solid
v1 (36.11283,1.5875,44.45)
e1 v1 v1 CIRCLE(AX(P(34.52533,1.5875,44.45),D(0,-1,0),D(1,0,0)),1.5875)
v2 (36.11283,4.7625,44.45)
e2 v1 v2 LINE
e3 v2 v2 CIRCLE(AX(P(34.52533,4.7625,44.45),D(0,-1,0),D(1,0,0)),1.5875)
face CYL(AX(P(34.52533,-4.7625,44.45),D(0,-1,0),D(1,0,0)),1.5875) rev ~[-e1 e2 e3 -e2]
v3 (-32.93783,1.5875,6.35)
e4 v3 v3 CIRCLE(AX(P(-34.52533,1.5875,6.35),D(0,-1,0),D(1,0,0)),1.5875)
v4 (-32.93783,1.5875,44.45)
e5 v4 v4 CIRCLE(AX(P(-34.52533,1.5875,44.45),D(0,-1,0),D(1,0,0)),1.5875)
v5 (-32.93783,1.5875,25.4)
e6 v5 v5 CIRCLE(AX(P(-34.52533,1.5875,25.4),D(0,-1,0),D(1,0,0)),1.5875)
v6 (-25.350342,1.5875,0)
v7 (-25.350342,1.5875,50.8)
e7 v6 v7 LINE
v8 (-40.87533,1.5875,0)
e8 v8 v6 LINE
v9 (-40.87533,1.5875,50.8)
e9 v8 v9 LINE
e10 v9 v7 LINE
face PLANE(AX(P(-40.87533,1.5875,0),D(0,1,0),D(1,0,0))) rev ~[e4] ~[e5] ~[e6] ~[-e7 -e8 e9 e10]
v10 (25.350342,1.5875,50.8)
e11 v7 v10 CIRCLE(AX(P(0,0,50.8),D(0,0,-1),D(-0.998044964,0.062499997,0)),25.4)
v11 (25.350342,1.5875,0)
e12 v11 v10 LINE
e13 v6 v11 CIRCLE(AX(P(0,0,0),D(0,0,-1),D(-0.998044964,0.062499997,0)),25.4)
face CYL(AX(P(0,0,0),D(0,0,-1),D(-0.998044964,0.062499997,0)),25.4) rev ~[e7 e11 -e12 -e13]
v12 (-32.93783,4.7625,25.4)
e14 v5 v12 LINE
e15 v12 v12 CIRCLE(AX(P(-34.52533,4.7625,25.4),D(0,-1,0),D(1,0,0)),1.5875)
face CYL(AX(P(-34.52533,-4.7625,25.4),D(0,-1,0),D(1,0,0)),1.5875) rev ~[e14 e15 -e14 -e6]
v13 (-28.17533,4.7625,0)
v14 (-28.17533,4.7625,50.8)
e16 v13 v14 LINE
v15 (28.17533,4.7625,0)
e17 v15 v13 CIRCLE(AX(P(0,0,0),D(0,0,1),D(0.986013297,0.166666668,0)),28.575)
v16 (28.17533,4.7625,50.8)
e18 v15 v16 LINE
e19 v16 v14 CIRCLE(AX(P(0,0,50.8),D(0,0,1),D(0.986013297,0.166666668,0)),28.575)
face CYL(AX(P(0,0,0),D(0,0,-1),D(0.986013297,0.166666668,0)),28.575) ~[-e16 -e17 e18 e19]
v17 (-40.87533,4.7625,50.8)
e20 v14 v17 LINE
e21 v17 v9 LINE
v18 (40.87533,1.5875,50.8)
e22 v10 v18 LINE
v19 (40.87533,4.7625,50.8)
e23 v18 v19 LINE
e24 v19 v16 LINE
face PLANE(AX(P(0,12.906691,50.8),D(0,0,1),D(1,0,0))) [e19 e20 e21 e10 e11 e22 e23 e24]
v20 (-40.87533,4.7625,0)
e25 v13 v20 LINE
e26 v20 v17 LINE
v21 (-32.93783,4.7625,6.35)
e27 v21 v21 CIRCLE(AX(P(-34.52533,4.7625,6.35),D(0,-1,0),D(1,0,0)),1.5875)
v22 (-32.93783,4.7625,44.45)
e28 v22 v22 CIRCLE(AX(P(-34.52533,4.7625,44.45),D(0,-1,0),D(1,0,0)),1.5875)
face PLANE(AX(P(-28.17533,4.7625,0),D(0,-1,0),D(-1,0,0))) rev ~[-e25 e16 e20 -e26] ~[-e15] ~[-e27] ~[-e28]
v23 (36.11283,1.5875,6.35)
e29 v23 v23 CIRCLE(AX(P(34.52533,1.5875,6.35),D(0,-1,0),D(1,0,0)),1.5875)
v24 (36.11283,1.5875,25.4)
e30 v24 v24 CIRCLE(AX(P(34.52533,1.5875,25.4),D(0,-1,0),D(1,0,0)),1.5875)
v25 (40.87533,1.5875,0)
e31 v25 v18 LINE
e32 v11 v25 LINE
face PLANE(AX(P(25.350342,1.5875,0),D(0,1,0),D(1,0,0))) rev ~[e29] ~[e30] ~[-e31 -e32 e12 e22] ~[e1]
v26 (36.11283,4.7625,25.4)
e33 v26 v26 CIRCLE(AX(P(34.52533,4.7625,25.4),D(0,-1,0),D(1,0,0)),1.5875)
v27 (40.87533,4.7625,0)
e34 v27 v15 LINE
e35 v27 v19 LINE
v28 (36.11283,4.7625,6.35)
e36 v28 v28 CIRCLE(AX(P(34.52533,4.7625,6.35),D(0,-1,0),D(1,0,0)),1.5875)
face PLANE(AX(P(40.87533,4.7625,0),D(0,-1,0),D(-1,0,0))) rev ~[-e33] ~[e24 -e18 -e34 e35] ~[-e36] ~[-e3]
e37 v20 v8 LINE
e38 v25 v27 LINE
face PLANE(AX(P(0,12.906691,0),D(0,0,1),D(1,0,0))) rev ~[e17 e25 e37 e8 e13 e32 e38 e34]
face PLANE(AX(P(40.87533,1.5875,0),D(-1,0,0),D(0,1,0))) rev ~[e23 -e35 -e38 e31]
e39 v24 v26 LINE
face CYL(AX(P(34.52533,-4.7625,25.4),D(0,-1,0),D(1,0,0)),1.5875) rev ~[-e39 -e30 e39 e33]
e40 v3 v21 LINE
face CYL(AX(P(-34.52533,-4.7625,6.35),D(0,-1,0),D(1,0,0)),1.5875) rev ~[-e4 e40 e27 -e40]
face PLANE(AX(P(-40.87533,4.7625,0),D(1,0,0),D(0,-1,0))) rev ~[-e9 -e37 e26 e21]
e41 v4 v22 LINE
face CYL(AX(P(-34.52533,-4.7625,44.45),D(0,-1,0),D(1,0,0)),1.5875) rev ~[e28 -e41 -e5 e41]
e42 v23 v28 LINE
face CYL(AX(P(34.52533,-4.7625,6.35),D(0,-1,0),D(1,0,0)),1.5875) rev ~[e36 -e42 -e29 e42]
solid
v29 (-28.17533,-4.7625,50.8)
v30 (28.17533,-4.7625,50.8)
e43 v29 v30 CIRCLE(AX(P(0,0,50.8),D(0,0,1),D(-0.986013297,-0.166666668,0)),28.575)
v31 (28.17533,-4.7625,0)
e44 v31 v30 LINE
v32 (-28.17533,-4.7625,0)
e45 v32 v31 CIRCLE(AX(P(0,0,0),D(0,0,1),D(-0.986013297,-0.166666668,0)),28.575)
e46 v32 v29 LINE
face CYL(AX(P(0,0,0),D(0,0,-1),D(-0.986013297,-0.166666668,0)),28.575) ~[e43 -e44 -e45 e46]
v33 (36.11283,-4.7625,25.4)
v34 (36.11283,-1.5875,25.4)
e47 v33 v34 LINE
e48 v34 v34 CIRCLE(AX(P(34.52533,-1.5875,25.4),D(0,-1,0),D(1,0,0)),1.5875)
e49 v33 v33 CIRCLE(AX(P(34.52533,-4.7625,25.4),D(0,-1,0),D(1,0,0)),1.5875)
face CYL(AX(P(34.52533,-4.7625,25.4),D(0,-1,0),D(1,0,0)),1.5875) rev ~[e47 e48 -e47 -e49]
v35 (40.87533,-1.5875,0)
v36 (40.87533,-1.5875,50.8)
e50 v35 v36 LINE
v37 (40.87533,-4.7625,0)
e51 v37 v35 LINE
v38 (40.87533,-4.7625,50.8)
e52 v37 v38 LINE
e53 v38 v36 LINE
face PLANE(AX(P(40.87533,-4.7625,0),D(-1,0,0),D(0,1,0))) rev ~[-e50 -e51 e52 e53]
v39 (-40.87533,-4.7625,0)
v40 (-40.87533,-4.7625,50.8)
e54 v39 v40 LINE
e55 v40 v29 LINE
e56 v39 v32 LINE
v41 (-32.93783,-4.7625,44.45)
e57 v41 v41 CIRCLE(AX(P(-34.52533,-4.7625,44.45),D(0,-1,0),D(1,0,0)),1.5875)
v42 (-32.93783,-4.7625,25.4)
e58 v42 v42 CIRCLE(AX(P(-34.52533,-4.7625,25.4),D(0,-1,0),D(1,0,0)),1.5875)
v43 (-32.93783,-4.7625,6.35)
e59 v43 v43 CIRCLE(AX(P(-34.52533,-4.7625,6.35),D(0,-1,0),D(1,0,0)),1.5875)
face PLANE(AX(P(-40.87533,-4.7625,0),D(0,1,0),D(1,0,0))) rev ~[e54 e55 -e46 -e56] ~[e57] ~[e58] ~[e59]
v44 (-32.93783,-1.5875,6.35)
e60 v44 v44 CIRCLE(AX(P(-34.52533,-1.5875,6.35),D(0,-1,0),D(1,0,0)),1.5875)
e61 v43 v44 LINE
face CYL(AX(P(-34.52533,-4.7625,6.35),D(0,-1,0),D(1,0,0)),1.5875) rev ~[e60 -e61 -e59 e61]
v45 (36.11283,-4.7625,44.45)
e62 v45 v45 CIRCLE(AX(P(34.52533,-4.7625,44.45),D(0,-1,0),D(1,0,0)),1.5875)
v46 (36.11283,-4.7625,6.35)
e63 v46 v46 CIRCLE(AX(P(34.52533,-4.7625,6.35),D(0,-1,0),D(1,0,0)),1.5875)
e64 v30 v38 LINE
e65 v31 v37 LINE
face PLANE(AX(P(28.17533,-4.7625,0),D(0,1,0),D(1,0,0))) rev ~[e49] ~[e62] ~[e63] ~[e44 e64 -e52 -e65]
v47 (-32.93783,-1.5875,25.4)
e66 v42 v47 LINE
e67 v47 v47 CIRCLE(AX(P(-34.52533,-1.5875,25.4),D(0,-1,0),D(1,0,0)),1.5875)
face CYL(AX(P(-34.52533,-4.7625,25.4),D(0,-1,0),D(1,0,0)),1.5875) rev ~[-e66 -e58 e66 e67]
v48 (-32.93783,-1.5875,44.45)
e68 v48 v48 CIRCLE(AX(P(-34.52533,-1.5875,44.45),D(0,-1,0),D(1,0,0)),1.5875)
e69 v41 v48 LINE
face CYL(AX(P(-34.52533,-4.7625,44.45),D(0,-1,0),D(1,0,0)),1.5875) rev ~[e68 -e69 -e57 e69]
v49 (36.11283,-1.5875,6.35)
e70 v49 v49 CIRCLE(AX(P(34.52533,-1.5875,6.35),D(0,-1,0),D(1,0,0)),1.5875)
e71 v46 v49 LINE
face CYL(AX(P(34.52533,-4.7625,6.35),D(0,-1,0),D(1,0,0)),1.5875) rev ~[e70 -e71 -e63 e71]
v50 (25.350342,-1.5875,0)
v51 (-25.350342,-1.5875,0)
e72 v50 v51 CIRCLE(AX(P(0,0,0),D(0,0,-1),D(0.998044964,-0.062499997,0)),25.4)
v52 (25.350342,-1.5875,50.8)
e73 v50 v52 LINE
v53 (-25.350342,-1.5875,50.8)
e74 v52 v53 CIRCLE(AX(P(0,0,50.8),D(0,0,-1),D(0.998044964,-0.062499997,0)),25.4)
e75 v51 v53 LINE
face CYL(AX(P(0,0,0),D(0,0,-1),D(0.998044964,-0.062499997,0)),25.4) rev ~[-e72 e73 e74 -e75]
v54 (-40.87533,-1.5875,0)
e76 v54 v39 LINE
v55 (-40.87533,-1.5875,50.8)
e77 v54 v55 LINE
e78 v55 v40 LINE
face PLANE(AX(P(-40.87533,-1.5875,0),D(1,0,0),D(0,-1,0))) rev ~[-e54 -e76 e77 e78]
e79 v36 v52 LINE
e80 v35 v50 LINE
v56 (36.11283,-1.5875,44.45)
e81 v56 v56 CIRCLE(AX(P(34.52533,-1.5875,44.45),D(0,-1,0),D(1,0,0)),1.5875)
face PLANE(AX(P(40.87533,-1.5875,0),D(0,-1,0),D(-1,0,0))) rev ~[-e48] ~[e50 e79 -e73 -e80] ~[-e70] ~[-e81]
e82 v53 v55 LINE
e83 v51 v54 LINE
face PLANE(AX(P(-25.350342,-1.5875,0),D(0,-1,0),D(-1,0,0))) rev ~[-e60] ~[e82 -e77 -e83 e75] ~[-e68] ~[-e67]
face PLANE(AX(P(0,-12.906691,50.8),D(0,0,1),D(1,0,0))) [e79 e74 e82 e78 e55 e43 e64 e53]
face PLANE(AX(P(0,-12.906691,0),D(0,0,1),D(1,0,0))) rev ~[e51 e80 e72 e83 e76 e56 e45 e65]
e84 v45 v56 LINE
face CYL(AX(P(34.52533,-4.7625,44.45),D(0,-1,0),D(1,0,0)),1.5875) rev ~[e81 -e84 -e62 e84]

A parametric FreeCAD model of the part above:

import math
import FreeCAD as App
import Part
import Sketcher
Q = App.Units.Quantity

doc = App.newDocument("Part")
body = doc.addObject("PartDesign::Body", "Body")
body.AllowCompound = True

# Sketch on XY plane
sketch1 = doc.addObject("Sketcher::SketchObject", "Sketch")
body.addObject(sketch1)
sketch1.AttachmentSupport = (doc.XY_Plane, [""])
sketch1.MapMode = "FlatFace"
sketch1.addGeometry([
    Part.ArcOfCircle(Part.Circle(App.Vector(0, 0, 0), App.Vector(0, 0, 1), 25.4), math.radians(-176), math.radians(-4)),  # 0
    Part.LineSegment(App.Vector(-25.4, -1.6, 0), App.Vector(-40.9, -1.6, 0)),  # 1
    Part.LineSegment(App.Vector(-40.9, -1.6, 0), App.Vector(-40.9, -4.8, 0)),  # 2
    Part.LineSegment(App.Vector(-40.9, -4.8, 0), App.Vector(-28.2, -4.8, 0)),  # 3
    Part.ArcOfCircle(Part.Circle(App.Vector(0, 0, 0), App.Vector(0, 0, 1), 28.6), math.radians(-170), math.radians(-10)),  # 4
    Part.LineSegment(App.Vector(28.2, -4.8, 0), App.Vector(40.9, -4.8, 0)),  # 5
    Part.LineSegment(App.Vector(40.9, -4.8, 0), App.Vector(40.9, -1.6, 0)),  # 6
    Part.LineSegment(App.Vector(40.9, -1.6, 0), App.Vector(25.4, -1.6, 0)),  # 7
    Part.LineSegment(App.Vector(-40.9, 4.8, 0), App.Vector(-40.9, 1.6, 0)),  # 8
    Part.LineSegment(App.Vector(-40.9, 1.6, 0), App.Vector(-25.4, 1.6, 0)),  # 9
    Part.ArcOfCircle(Part.Circle(App.Vector(0, 0, 0), App.Vector(0, 0, 1), 25.4), math.radians(4), math.radians(176)),  # 10
    Part.LineSegment(App.Vector(25.4, 1.6, 0), App.Vector(40.9, 1.6, 0)),  # 11
    Part.LineSegment(App.Vector(40.9, 1.6, 0), App.Vector(40.9, 4.8, 0)),  # 12
    Part.LineSegment(App.Vector(40.9, 4.8, 0), App.Vector(28.2, 4.8, 0)),  # 13
    Part.ArcOfCircle(Part.Circle(App.Vector(0, 0, 0), App.Vector(0, 0, 1), 28.6), math.radians(10), math.radians(170)),  # 14
    Part.LineSegment(App.Vector(-28.2, 4.8, 0), App.Vector(-40.9, 4.8, 0)),  # 15
], False)
sketch1.addConstraint([
    Sketcher.Constraint("Coincident", 0, 1, 1, 1),
    Sketcher.Constraint("Coincident", 1, 2, 2, 1),
    Sketcher.Constraint("Coincident", 2, 2, 3, 1),
    Sketcher.Constraint("Coincident", 3, 2, 4, 1),
    Sketcher.Constraint("Coincident", 4, 2, 5, 1),
    Sketcher.Constraint("Coincident", 5, 2, 6, 1),
    Sketcher.Constraint("Coincident", 6, 2, 7, 1),
    Sketcher.Constraint("Coincident", 7, 2, 0, 2),
    Sketcher.Constraint("Coincident", 8, 2, 9, 1),
    Sketcher.Constraint("Coincident", 9, 2, 10, 2),
    Sketcher.Constraint("Coincident", 10, 1, 11, 1),
    Sketcher.Constraint("Coincident", 11, 2, 12, 1),
    Sketcher.Constraint("Coincident", 12, 2, 13, 1),
    Sketcher.Constraint("Coincident", 13, 2, 14, 1),
    Sketcher.Constraint("Coincident", 14, 2, 15, 1),
    Sketcher.Constraint("Coincident", 15, 2, 8, 1),
    Sketcher.Constraint("Horizontal", 1),
    Sketcher.Constraint("Vertical", 2),
    Sketcher.Constraint("Horizontal", 3),
    Sketcher.Constraint("Horizontal", 5),
    Sketcher.Constraint("Vertical", 6),
    Sketcher.Constraint("Horizontal", 7),
    Sketcher.Constraint("Vertical", 8),
    Sketcher.Constraint("Horizontal", 9),
    Sketcher.Constraint("Horizontal", 11),
    Sketcher.Constraint("Vertical", 12),
    Sketcher.Constraint("Horizontal", 13),
    Sketcher.Constraint("Horizontal", 15),
    Sketcher.Constraint("Coincident", 0, 3, -1, 1),
    Sketcher.Constraint("Coincident", 4, 3, -1, 1),
    Sketcher.Constraint("Coincident", 10, 3, -1, 1),
    Sketcher.Constraint("Coincident", 14, 3, -1, 1),
    Sketcher.Constraint("Equal", 0, 10),
    Sketcher.Constraint("Equal", 4, 14),
    Sketcher.Constraint("Symmetric", 6, 2, 8, 2, -1, 1),
    Sketcher.Constraint("Symmetric", 1, 2, 11, 2, -1, 1),
    Sketcher.Constraint("Symmetric", 2, 2, 5, 2, -2),
    Sketcher.Constraint("Horizontal", 1, 2, 6, 2),
    Sketcher.Constraint("Horizontal", 13, 2, 14, 2),
    Sketcher.Constraint("Vertical", 4, 2, 13, 2),
    Sketcher.Constraint("Radius", 0, Q("1 in")),
    Sketcher.Constraint("DistanceX", 3, 1, 3, 2, Q("0.5 in")),
    Sketcher.Constraint("Radius", 4, Q("1.125 in")),
    Sketcher.Constraint("DistanceY", 2, 2, 2, 1, Q("0.125 in")),
    Sketcher.Constraint("DistanceY", 2, 2, 8, 2, Q("0.25 in")),
])
pad1 = doc.addObject("PartDesign::Pad", "Pad")
body.addObject(pad1)
pad1.Profile = sketch1
pad1.Length = Q("2 in")

# Sketch on XZ plane
sketch2 = doc.addObject("Sketcher::SketchObject", "Sketch001")
body.addObject(sketch2)
sketch2.AttachmentSupport = (doc.XZ_Plane, [""])
sketch2.MapMode = "FlatFace"
sketch2.AttachmentOffset = App.Placement(App.Vector(0, 0, 0.1875 * 25.4), App.Rotation())
sketch2.addGeometry([
    Part.Circle(App.Vector(34.5, 44.5, 0), App.Vector(0, 0, 1), 1.6),  # 0
    Part.Circle(App.Vector(34.5, 25.4, 0), App.Vector(0, 0, 1), 1.6),  # 1
    Part.Circle(App.Vector(34.5, 6.3, 0), App.Vector(0, 0, 1), 1.6),  # 2
    Part.Circle(App.Vector(-34.5, 25.4, 0), App.Vector(0, 0, 1), 1.6),  # 3
    Part.Circle(App.Vector(-34.5, 6.3, 0), App.Vector(0, 0, 1), 1.6),  # 4
    Part.Circle(App.Vector(-34.5, 44.5, 0), App.Vector(0, 0, 1), 1.6),  # 5
], False)
sketch2.addConstraint([
    Sketcher.Constraint("Equal", 0, 1),
    Sketcher.Constraint("Equal", 1, 2),
    Sketcher.Constraint("Equal", 2, 3),
    Sketcher.Constraint("Equal", 3, 4),
    Sketcher.Constraint("Equal", 4, 5),
    Sketcher.Constraint("Symmetric", 1, 3, 3, 3, -2),
    Sketcher.Constraint("Symmetric", 2, 3, 4, 3, -2),
    Sketcher.Constraint("Symmetric", 0, 3, 5, 3, -2),
    Sketcher.Constraint("Vertical", 0, 3, 1, 3),
    Sketcher.Constraint("Vertical", 1, 3, 2, 3),
    Sketcher.Constraint("Diameter", 0, Q("0.125 in")),
    Sketcher.Constraint("DistanceY", -1, 1, 1, 3, Q("1 in")),
    Sketcher.Constraint("DistanceY", 2, 3, 0, 3, Q("1.5 in")),
    Sketcher.Constraint("DistanceY", -1, 1, 0, 3, Q("1.75 in")),
    Sketcher.Constraint("DistanceX", -1, 1, 0, 3, 34.52533),
])
pocket1 = doc.addObject("PartDesign::Pocket", "Pocket")
body.addObject(pocket1)
pocket1.Profile = sketch2
pocket1.Type = "ThroughAll"

doc.recompute()
